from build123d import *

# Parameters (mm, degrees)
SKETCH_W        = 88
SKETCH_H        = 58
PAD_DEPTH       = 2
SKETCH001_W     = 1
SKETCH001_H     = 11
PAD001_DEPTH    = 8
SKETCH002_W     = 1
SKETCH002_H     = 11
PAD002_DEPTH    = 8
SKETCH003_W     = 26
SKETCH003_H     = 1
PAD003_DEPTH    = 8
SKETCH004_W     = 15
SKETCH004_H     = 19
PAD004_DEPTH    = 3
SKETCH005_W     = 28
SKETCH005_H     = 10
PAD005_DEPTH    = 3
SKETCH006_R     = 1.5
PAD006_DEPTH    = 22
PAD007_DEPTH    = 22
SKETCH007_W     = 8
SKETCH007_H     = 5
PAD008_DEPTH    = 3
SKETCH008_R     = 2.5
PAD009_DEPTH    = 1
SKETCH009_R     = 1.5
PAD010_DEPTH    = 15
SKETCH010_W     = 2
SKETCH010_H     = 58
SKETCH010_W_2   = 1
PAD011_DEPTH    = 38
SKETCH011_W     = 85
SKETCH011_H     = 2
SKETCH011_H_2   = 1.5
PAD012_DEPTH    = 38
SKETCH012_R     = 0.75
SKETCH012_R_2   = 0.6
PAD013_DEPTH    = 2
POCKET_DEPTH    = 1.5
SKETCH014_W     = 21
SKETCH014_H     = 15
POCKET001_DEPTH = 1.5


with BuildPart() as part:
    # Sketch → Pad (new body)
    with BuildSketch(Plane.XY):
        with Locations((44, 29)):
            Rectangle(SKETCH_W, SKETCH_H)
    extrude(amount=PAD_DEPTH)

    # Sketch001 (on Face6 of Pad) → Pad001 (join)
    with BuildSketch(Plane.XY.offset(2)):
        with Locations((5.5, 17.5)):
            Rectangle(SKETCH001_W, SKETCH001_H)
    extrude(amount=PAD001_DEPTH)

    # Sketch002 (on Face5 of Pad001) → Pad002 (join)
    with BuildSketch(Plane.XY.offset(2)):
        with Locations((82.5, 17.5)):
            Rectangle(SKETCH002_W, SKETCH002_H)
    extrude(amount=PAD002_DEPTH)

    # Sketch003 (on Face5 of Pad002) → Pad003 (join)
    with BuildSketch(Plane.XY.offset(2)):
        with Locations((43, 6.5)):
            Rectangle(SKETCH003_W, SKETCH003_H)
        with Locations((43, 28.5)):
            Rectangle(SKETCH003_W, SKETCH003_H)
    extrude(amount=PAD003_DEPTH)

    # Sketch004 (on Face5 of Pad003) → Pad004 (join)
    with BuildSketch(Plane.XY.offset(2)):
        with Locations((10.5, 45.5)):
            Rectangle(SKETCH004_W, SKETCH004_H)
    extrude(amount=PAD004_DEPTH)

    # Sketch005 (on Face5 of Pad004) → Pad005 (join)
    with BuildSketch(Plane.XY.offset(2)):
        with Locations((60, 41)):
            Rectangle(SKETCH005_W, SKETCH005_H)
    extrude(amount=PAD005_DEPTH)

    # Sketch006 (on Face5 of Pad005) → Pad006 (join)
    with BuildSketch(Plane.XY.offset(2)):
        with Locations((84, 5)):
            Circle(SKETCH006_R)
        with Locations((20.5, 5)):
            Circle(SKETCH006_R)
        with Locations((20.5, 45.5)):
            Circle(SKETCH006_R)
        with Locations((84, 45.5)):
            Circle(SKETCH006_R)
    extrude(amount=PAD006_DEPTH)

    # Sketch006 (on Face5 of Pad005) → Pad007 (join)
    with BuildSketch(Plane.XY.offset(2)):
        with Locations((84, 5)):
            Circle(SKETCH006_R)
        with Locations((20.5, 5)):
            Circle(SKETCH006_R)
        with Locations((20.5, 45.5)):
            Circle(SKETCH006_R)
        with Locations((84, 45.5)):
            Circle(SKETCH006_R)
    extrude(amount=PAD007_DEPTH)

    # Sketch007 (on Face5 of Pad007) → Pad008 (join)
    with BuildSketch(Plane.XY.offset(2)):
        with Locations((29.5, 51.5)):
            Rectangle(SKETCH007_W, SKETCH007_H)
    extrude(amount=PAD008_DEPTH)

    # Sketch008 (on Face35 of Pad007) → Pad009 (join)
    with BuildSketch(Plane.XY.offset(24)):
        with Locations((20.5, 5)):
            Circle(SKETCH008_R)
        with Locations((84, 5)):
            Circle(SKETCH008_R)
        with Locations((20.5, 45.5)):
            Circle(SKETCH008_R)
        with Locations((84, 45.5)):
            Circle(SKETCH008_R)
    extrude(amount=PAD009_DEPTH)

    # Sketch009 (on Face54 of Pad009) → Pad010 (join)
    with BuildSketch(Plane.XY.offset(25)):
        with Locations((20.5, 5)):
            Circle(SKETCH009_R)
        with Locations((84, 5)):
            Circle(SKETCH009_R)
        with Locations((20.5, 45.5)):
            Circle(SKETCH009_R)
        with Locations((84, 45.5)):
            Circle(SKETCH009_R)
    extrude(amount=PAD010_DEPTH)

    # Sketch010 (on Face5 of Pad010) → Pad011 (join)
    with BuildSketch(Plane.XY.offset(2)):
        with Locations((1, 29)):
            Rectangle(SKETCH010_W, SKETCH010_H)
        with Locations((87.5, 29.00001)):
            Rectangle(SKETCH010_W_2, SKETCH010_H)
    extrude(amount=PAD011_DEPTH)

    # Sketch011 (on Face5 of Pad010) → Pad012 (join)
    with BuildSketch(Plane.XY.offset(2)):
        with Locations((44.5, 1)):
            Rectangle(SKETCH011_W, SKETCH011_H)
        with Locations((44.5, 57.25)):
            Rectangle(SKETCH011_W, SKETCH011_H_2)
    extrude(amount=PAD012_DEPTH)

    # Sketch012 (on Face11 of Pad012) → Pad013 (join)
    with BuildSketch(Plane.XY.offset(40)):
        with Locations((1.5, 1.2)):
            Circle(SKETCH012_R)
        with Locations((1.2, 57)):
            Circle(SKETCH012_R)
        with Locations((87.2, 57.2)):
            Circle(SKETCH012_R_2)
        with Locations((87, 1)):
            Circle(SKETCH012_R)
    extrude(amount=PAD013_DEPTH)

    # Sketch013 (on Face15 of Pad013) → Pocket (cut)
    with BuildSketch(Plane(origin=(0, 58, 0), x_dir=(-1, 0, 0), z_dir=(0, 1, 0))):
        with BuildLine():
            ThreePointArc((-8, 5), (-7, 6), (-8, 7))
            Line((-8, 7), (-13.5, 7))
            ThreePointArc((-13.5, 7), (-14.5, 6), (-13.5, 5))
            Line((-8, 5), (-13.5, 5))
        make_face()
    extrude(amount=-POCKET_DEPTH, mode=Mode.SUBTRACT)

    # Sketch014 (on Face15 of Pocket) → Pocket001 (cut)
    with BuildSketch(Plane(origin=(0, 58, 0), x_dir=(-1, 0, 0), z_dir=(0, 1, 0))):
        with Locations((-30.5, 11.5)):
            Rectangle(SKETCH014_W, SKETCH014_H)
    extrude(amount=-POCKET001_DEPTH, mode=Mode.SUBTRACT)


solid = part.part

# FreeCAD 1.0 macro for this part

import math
import FreeCAD as App
import Part
import Sketcher
Q = App.Units.Quantity

doc = App.newDocument("Part")
params = doc.addObject("Spreadsheet::Sheet", "Params")
for row, (alias, value) in enumerate([
    ("sketch1_width", "88 mm"),
    ("sketch1_height", "58 mm"),
    ("pad1_length", "2 mm"),
    ("sketch2_width", "1 mm"),
    ("sketch2_height", "11 mm"),
    ("pad2_length", "8 mm"),
    ("sketch3_width", "1 mm"),
    ("sketch3_height", "11 mm"),
    ("pad3_length", "8 mm"),
    ("sketch4_width", "26 mm"),
    ("sketch4_height", "1 mm"),
    ("pad4_length", "8 mm"),
    ("sketch5_width", "15 mm"),
    ("sketch5_height", "19 mm"),
    ("pad5_length", "3 mm"),
    ("sketch6_width", "28 mm"),
    ("sketch6_height", "10 mm"),
    ("pad6_length", "3 mm"),
    ("sketch7_diameter", "3 mm"),
    ("pad7_length", "22 mm"),
    ("sketch8_diameter", "3 mm"),
    ("pad8_length", "22 mm"),
    ("sketch9_width", "8 mm"),
    ("sketch9_height", "5 mm"),
    ("pad9_length", "3 mm"),
    ("sketch10_diameter", "5 mm"),
    ("pad10_length", "1 mm"),
    ("sketch11_diameter", "3 mm"),
    ("pad11_length", "15 mm"),
    ("sketch12_width", "2 mm"),
    ("sketch12_width2", "1 mm"),
    ("sketch12_height", "58 mm"),
    ("pad12_length", "38 mm"),
    ("sketch13_width", "85 mm"),
    ("sketch13_height", "2 mm"),
    ("sketch13_height2", "1.5 mm"),
    ("pad13_length", "38 mm"),
    ("sketch14_diameter", "1.5 mm"),
    ("sketch14_diameter2", "1.2 mm"),
    ("pad14_length", "2 mm"),
    ("sketch15_radius", "1 mm"),
    ("sketch15_width", "5.5 mm"),
    ("pocket1_length", "1.5 mm"),
    ("sketch16_width", "21 mm"),
    ("sketch16_height", "15 mm"),
    ("pocket2_length", "1.5 mm"),
], start=1):
    params.set(f"A{row}", alias)
    params.set(f"B{row}", "=" + value)
    params.setAlias(f"B{row}", alias)

body = doc.addObject("PartDesign::Body", "Body")

# Sketch on XY plane
sketch1 = doc.addObject("Sketcher::SketchObject", "Sketch")
body.addObject(sketch1)
sketch1.AttachmentSupport = (doc.XY_Plane, [""])
sketch1.MapMode = "FlatFace"
sketch1.addGeometry([
    Part.LineSegment(App.Vector(0, 58, 0), App.Vector(0, 0, 0)),
    Part.LineSegment(App.Vector(0, 0, 0), App.Vector(88, 0, 0)),
    Part.LineSegment(App.Vector(88, 0, 0), App.Vector(88, 58, 0)),
    Part.LineSegment(App.Vector(88, 58, 0), App.Vector(0, 58, 0)),
], False)
sketch1.addConstraint([
    Sketcher.Constraint("Coincident", 0, 2, 1, 1),
    Sketcher.Constraint("Coincident", 1, 2, 2, 1),
    Sketcher.Constraint("Coincident", 2, 2, 3, 1),
    Sketcher.Constraint("Coincident", 3, 2, 0, 1),
    Sketcher.Constraint("Vertical", 0),
    Sketcher.Constraint("Horizontal", 1),
    Sketcher.Constraint("Vertical", 2),
    Sketcher.Constraint("Horizontal", 3),
    Sketcher.Constraint("Coincident", 0, 2, -1, 1),
    Sketcher.Constraint("DistanceX", 1, 1, 1, 2, Q("88 mm")),
    Sketcher.Constraint("DistanceY", 0, 2, 0, 1, Q("58 mm")),
])
sketch1.setExpression("Constraints[9]", "Params.sketch1_width")
sketch1.setExpression("Constraints[10]", "Params.sketch1_height")
pad1 = doc.addObject("PartDesign::Pad", "Pad")
body.addObject(pad1)
pad1.Profile = sketch1
pad1.setExpression("Length", "Params.pad1_length")

# Sketch on XY plane
sketch2 = doc.addObject("Sketcher::SketchObject", "Sketch001")
body.addObject(sketch2)
sketch2.AttachmentSupport = (doc.XY_Plane, [""])
sketch2.MapMode = "FlatFace"
sketch2.AttachmentOffset = App.Placement(App.Vector(0, 0, 2), App.Rotation())
sketch2.addGeometry([
    Part.LineSegment(App.Vector(5, 23, 0), App.Vector(5, 12, 0)),
    Part.LineSegment(App.Vector(5, 12, 0), App.Vector(6, 12, 0)),
    Part.LineSegment(App.Vector(6, 12, 0), App.Vector(6, 23, 0)),
    Part.LineSegment(App.Vector(6, 23, 0), App.Vector(5, 23, 0)),
], False)
sketch2.addConstraint([
    Sketcher.Constraint("Coincident", 0, 2, 1, 1),
    Sketcher.Constraint("Coincident", 1, 2, 2, 1),
    Sketcher.Constraint("Coincident", 2, 2, 3, 1),
    Sketcher.Constraint("Coincident", 3, 2, 0, 1),
    Sketcher.Constraint("Vertical", 0),
    Sketcher.Constraint("Horizontal", 1),
    Sketcher.Constraint("Vertical", 2),
    Sketcher.Constraint("Horizontal", 3),
    Sketcher.Constraint("DistanceX", 1, 1, 1, 2, Q("1 mm")),
    Sketcher.Constraint("DistanceY", 0, 2, 0, 1, Q("11 mm")),
    Sketcher.Constraint("DistanceX", -1, 1, 0, 2, Q("5 mm")),
    Sketcher.Constraint("DistanceY", -1, 1, 0, 2, Q("12 mm")),
])
sketch2.setExpression("Constraints[8]", "Params.sketch2_width")
sketch2.setExpression("Constraints[9]", "Params.sketch2_height")
pad2 = doc.addObject("PartDesign::Pad", "Pad001")
body.addObject(pad2)
pad2.Profile = sketch2
pad2.setExpression("Length", "Params.pad2_length")

# Sketch on XY plane
sketch3 = doc.addObject("Sketcher::SketchObject", "Sketch002")
body.addObject(sketch3)
sketch3.AttachmentSupport = (doc.XY_Plane, [""])
sketch3.MapMode = "FlatFace"
sketch3.AttachmentOffset = App.Placement(App.Vector(0, 0, 2), App.Rotation())
sketch3.addGeometry([
    Part.LineSegment(App.Vector(82, 23, 0), App.Vector(82, 12, 0)),
    Part.LineSegment(App.Vector(82, 12, 0), App.Vector(83, 12, 0)),
    Part.LineSegment(App.Vector(83, 12, 0), App.Vector(83, 23, 0)),
    Part.LineSegment(App.Vector(83, 23, 0), App.Vector(82, 23, 0)),
], False)
sketch3.addConstraint([
    Sketcher.Constraint("Coincident", 0, 2, 1, 1),
    Sketcher.Constraint("Coincident", 1, 2, 2, 1),
    Sketcher.Constraint("Coincident", 2, 2, 3, 1),
    Sketcher.Constraint("Coincident", 3, 2, 0, 1),
    Sketcher.Constraint("Vertical", 0),
    Sketcher.Constraint("Horizontal", 1),
    Sketcher.Constraint("Vertical", 2),
    Sketcher.Constraint("Horizontal", 3),
    Sketcher.Constraint("DistanceX", 1, 1, 1, 2, Q("1 mm")),
    Sketcher.Constraint("DistanceY", 0, 2, 0, 1, Q("11 mm")),
    Sketcher.Constraint("DistanceX", -1, 1, 0, 2, Q("82 mm")),
    Sketcher.Constraint("DistanceY", -1, 1, 0, 2, Q("12 mm")),
])
sketch3.setExpression("Constraints[8]", "Params.sketch3_width")
sketch3.setExpression("Constraints[9]", "Params.sketch3_height")
pad3 = doc.addObject("PartDesign::Pad", "Pad002")
body.addObject(pad3)
pad3.Profile = sketch3
pad3.setExpression("Length", "Params.pad3_length")

# Sketch on XY plane
sketch4 = doc.addObject("Sketcher::SketchObject", "Sketch003")
body.addObject(sketch4)
sketch4.AttachmentSupport = (doc.XY_Plane, [""])
sketch4.MapMode = "FlatFace"
sketch4.AttachmentOffset = App.Placement(App.Vector(0, 0, 2), App.Rotation())
sketch4.addGeometry([
    Part.LineSegment(App.Vector(30, 7, 0), App.Vector(30, 6, 0)),  # 0
    Part.LineSegment(App.Vector(30, 6, 0), App.Vector(56, 6, 0)),  # 1
    Part.LineSegment(App.Vector(56, 6, 0), App.Vector(56, 7, 0)),  # 2
    Part.LineSegment(App.Vector(56, 7, 0), App.Vector(30, 7, 0)),  # 3
    Part.LineSegment(App.Vector(30, 29, 0), App.Vector(30, 28, 0)),  # 4
    Part.LineSegment(App.Vector(30, 28, 0), App.Vector(56, 28, 0)),  # 5
    Part.LineSegment(App.Vector(56, 28, 0), App.Vector(56, 29, 0)),  # 6
    Part.LineSegment(App.Vector(56, 29, 0), App.Vector(30, 29, 0)),  # 7
], False)
sketch4.addConstraint([
    Sketcher.Constraint("Coincident", 0, 2, 1, 1),
    Sketcher.Constraint("Coincident", 1, 2, 2, 1),
    Sketcher.Constraint("Coincident", 2, 2, 3, 1),
    Sketcher.Constraint("Coincident", 3, 2, 0, 1),
    Sketcher.Constraint("Coincident", 4, 2, 5, 1),
    Sketcher.Constraint("Coincident", 5, 2, 6, 1),
    Sketcher.Constraint("Coincident", 6, 2, 7, 1),
    Sketcher.Constraint("Coincident", 7, 2, 4, 1),
    Sketcher.Constraint("Vertical", 0),
    Sketcher.Constraint("Horizontal", 1),
    Sketcher.Constraint("Vertical", 2),
    Sketcher.Constraint("Horizontal", 3),
    Sketcher.Constraint("Vertical", 4),
    Sketcher.Constraint("Horizontal", 5),
    Sketcher.Constraint("Vertical", 6),
    Sketcher.Constraint("Horizontal", 7),
    Sketcher.Constraint("Vertical", 3, 2, 4, 2),
    Sketcher.Constraint("Vertical", 2, 2, 5, 2),
    Sketcher.Constraint("Equal", 2, 4),
    Sketcher.Constraint("DistanceX", 1, 1, 1, 2, Q("26 mm")),
    Sketcher.Constraint("DistanceY", 0, 2, 0, 1, Q("1 mm")),
    Sketcher.Constraint("DistanceX", -1, 1, 0, 2, Q("30 mm")),
    Sketcher.Constraint("DistanceY", -1, 1, 0, 2, Q("6 mm")),
    Sketcher.Constraint("DistanceY", -1, 1, 4, 2, Q("28 mm")),
])
sketch4.setExpression("Constraints[19]", "Params.sketch4_width")
sketch4.setExpression("Constraints[20]", "Params.sketch4_height")
pad4 = doc.addObject("PartDesign::Pad", "Pad003")
body.addObject(pad4)
pad4.Profile = sketch4
pad4.setExpression("Length", "Params.pad4_length")

# Sketch on XY plane
sketch5 = doc.addObject("Sketcher::SketchObject", "Sketch004")
body.addObject(sketch5)
sketch5.AttachmentSupport = (doc.XY_Plane, [""])
sketch5.MapMode = "FlatFace"
sketch5.AttachmentOffset = App.Placement(App.Vector(0, 0, 2), App.Rotation())
sketch5.addGeometry([
    Part.LineSegment(App.Vector(3, 55, 0), App.Vector(3, 36, 0)),
    Part.LineSegment(App.Vector(3, 36, 0), App.Vector(18, 36, 0)),
    Part.LineSegment(App.Vector(18, 36, 0), App.Vector(18, 55, 0)),
    Part.LineSegment(App.Vector(18, 55, 0), App.Vector(3, 55, 0)),
], False)
sketch5.addConstraint([
    Sketcher.Constraint("Coincident", 0, 2, 1, 1),
    Sketcher.Constraint("Coincident", 1, 2, 2, 1),
    Sketcher.Constraint("Coincident", 2, 2, 3, 1),
    Sketcher.Constraint("Coincident", 3, 2, 0, 1),
    Sketcher.Constraint("Vertical", 0),
    Sketcher.Constraint("Horizontal", 1),
    Sketcher.Constraint("Vertical", 2),
    Sketcher.Constraint("Horizontal", 3),
    Sketcher.Constraint("DistanceX", 1, 1, 1, 2, Q("15 mm")),
    Sketcher.Constraint("DistanceY", 0, 2, 0, 1, Q("19 mm")),
    Sketcher.Constraint("DistanceX", -1, 1, 0, 2, Q("3 mm")),
    Sketcher.Constraint("DistanceY", -1, 1, 0, 2, Q("36 mm")),
])
sketch5.setExpression("Constraints[8]", "Params.sketch5_width")
sketch5.setExpression("Constraints[9]", "Params.sketch5_height")
pad5 = doc.addObject("PartDesign::Pad", "Pad004")
body.addObject(pad5)
pad5.Profile = sketch5
pad5.setExpression("Length", "Params.pad5_length")

# Sketch on XY plane
sketch6 = doc.addObject("Sketcher::SketchObject", "Sketch005")
body.addObject(sketch6)
sketch6.AttachmentSupport = (doc.XY_Plane, [""])
sketch6.MapMode = "FlatFace"
sketch6.AttachmentOffset = App.Placement(App.Vector(0, 0, 2), App.Rotation())
sketch6.addGeometry([
    Part.LineSegment(App.Vector(46, 46, 0), App.Vector(46, 36, 0)),
    Part.LineSegment(App.Vector(46, 36, 0), App.Vector(74, 36, 0)),
    Part.LineSegment(App.Vector(74, 36, 0), App.Vector(74, 46, 0)),
    Part.LineSegment(App.Vector(74, 46, 0), App.Vector(46, 46, 0)),
], False)
sketch6.addConstraint([
    Sketcher.Constraint("Coincident", 0, 2, 1, 1),
    Sketcher.Constraint("Coincident", 1, 2, 2, 1),
    Sketcher.Constraint("Coincident", 2, 2, 3, 1),
    Sketcher.Constraint("Coincident", 3, 2, 0, 1),
    Sketcher.Constraint("Vertical", 0),
    Sketcher.Constraint("Horizontal", 1),
    Sketcher.Constraint("Vertical", 2),
    Sketcher.Constraint("Horizontal", 3),
    Sketcher.Constraint("DistanceX", 1, 1, 1, 2, Q("28 mm")),
    Sketcher.Constraint("DistanceY", 0, 2, 0, 1, Q("10 mm")),
    Sketcher.Constraint("DistanceX", -1, 1, 0, 2, Q("46 mm")),
    Sketcher.Constraint("DistanceY", -1, 1, 0, 2, Q("36 mm")),
])
sketch6.setExpression("Constraints[8]", "Params.sketch6_width")
sketch6.setExpression("Constraints[9]", "Params.sketch6_height")
pad6 = doc.addObject("PartDesign::Pad", "Pad005")
body.addObject(pad6)
pad6.Profile = sketch6
pad6.setExpression("Length", "Params.pad6_length")

# Sketch on XY plane
sketch7 = doc.addObject("Sketcher::SketchObject", "Sketch006")
body.addObject(sketch7)
sketch7.AttachmentSupport = (doc.XY_Plane, [""])
sketch7.MapMode = "FlatFace"
sketch7.AttachmentOffset = App.Placement(App.Vector(0, 0, 2), App.Rotation())
sketch7.addGeometry([
    Part.Circle(App.Vector(84, 5, 0), App.Vector(0, 0, 1), 1.5),
    Part.Circle(App.Vector(20.5, 5, 0), App.Vector(0, 0, 1), 1.5),
    Part.Circle(App.Vector(20.5, 45.5, 0), App.Vector(0, 0, 1), 1.5),
    Part.Circle(App.Vector(84, 45.5, 0), App.Vector(0, 0, 1), 1.5),
], False)
sketch7.addConstraint([
    Sketcher.Constraint("Equal", 0, 1),
    Sketcher.Constraint("Equal", 1, 2),
    Sketcher.Constraint("Equal", 2, 3),
    Sketcher.Constraint("Horizontal", 0, 3, 1, 3),
    Sketcher.Constraint("Horizontal", 2, 3, 3, 3),
    Sketcher.Constraint("Vertical", 1, 3, 2, 3),
    Sketcher.Constraint("Vertical", 0, 3, 3, 3),
    Sketcher.Constraint("Diameter", 0, Q("3 mm")),
    Sketcher.Constraint("DistanceX", -1, 1, 0, 3, Q("84 mm")),
    Sketcher.Constraint("DistanceY", -1, 1, 0, 3, Q("5 mm")),
    Sketcher.Constraint("DistanceX", -1, 1, 1, 3, Q("20.5 mm")),
    Sketcher.Constraint("DistanceY", -1, 1, 2, 3, Q("45.5 mm")),
])
sketch7.setExpression("Constraints[7]", "Params.sketch7_diameter")
pad7 = doc.addObject("PartDesign::Pad", "Pad006")
body.addObject(pad7)
pad7.Profile = sketch7
pad7.setExpression("Length", "Params.pad7_length")

# Sketch on XY plane
sketch8 = doc.addObject("Sketcher::SketchObject", "Sketch007")
body.addObject(sketch8)
sketch8.AttachmentSupport = (doc.XY_Plane, [""])
sketch8.MapMode = "FlatFace"
sketch8.AttachmentOffset = App.Placement(App.Vector(0, 0, 2), App.Rotation())
sketch8.addGeometry([
    Part.Circle(App.Vector(84, 5, 0), App.Vector(0, 0, 1), 1.5),
    Part.Circle(App.Vector(20.5, 5, 0), App.Vector(0, 0, 1), 1.5),
    Part.Circle(App.Vector(20.5, 45.5, 0), App.Vector(0, 0, 1), 1.5),
    Part.Circle(App.Vector(84, 45.5, 0), App.Vector(0, 0, 1), 1.5),
], False)
sketch8.addConstraint([
    Sketcher.Constraint("Equal", 0, 1),
    Sketcher.Constraint("Equal", 1, 2),
    Sketcher.Constraint("Equal", 2, 3),
    Sketcher.Constraint("Horizontal", 0, 3, 1, 3),
    Sketcher.Constraint("Horizontal", 2, 3, 3, 3),
    Sketcher.Constraint("Vertical", 1, 3, 2, 3),
    Sketcher.Constraint("Vertical", 0, 3, 3, 3),
    Sketcher.Constraint("Diameter", 0, Q("3 mm")),
    Sketcher.Constraint("DistanceX", -1, 1, 0, 3, Q("84 mm")),
    Sketcher.Constraint("DistanceY", -1, 1, 0, 3, Q("5 mm")),
    Sketcher.Constraint("DistanceX", -1, 1, 1, 3, Q("20.5 mm")),
    Sketcher.Constraint("DistanceY", -1, 1, 2, 3, Q("45.5 mm")),
])
sketch8.setExpression("Constraints[7]", "Params.sketch8_diameter")
pad8 = doc.addObject("PartDesign::Pad", "Pad007")
body.addObject(pad8)
pad8.Profile = sketch8
pad8.setExpression("Length", "Params.pad8_length")

# Sketch on XY plane
sketch9 = doc.addObject("Sketcher::SketchObject", "Sketch008")
body.addObject(sketch9)
sketch9.AttachmentSupport = (doc.XY_Plane, [""])
sketch9.MapMode = "FlatFace"
sketch9.AttachmentOffset = App.Placement(App.Vector(0, 0, 2), App.Rotation())
sketch9.addGeometry([
    Part.LineSegment(App.Vector(25.5, 54, 0), App.Vector(25.5, 49, 0)),
    Part.LineSegment(App.Vector(25.5, 49, 0), App.Vector(33.5, 49, 0)),
    Part.LineSegment(App.Vector(33.5, 49, 0), App.Vector(33.5, 54, 0)),
    Part.LineSegment(App.Vector(33.5, 54, 0), App.Vector(25.5, 54, 0)),
], False)
sketch9.addConstraint([
    Sketcher.Constraint("Coincident", 0, 2, 1, 1),
    Sketcher.Constraint("Coincident", 1, 2, 2, 1),
    Sketcher.Constraint("Coincident", 2, 2, 3, 1),
    Sketcher.Constraint("Coincident", 3, 2, 0, 1),
    Sketcher.Constraint("Vertical", 0),
    Sketcher.Constraint("Horizontal", 1),
    Sketcher.Constraint("Vertical", 2),
    Sketcher.Constraint("Horizontal", 3),
    Sketcher.Constraint("DistanceX", 1, 1, 1, 2, Q("8 mm")),
    Sketcher.Constraint("DistanceY", 0, 2, 0, 1, Q("5 mm")),
    Sketcher.Constraint("DistanceY", -1, 1, 0, 2, Q("49 mm")),
    Sketcher.Constraint("DistanceX", -1, 1, 0, 2, Q("25.5 mm")),
])
sketch9.setExpression("Constraints[8]", "Params.sketch9_width")
sketch9.setExpression("Constraints[9]", "Params.sketch9_height")
pad9 = doc.addObject("PartDesign::Pad", "Pad008")
body.addObject(pad9)
pad9.Profile = sketch9
pad9.setExpression("Length", "Params.pad9_length")

# Sketch on XY plane
sketch10 = doc.addObject("Sketcher::SketchObject", "Sketch009")
body.addObject(sketch10)
sketch10.AttachmentSupport = (doc.XY_Plane, [""])
sketch10.MapMode = "FlatFace"
sketch10.AttachmentOffset = App.Placement(App.Vector(0, 0, 24), App.Rotation())
sketch10.addGeometry([
    Part.Circle(App.Vector(20.5, 5, 0), App.Vector(0, 0, 1), 2.5),
    Part.Circle(App.Vector(84, 5, 0), App.Vector(0, 0, 1), 2.5),
    Part.Circle(App.Vector(20.5, 45.5, 0), App.Vector(0, 0, 1), 2.5),
    Part.Circle(App.Vector(84, 45.5, 0), App.Vector(0, 0, 1), 2.5),
], False)
sketch10.addConstraint([
    Sketcher.Constraint("Equal", 0, 1),
    Sketcher.Constraint("Equal", 1, 2),
    Sketcher.Constraint("Equal", 2, 3),
    Sketcher.Constraint("Horizontal", 0, 3, 1, 3),
    Sketcher.Constraint("Horizontal", 2, 3, 3, 3),
    Sketcher.Constraint("Vertical", 0, 3, 2, 3),
    Sketcher.Constraint("Vertical", 1, 3, 3, 3),
    Sketcher.Constraint("Diameter", 0, Q("5 mm")),
    Sketcher.Constraint("DistanceY", -1, 1, 0, 3, Q("5 mm")),
    Sketcher.Constraint("DistanceX", -1, 1, 1, 3, Q("84 mm")),
    Sketcher.Constraint("DistanceX", -1, 1, 0, 3, Q("20.5 mm")),
    Sketcher.Constraint("DistanceY", -1, 1, 2, 3, Q("45.5 mm")),
])
sketch10.setExpression("Constraints[7]", "Params.sketch10_diameter")
pad10 = doc.addObject("PartDesign::Pad", "Pad009")
body.addObject(pad10)
pad10.Profile = sketch10
pad10.setExpression("Length", "Params.pad10_length")

# Sketch on XY plane
sketch11 = doc.addObject("Sketcher::SketchObject", "Sketch010")
body.addObject(sketch11)
sketch11.AttachmentSupport = (doc.XY_Plane, [""])
sketch11.MapMode = "FlatFace"
sketch11.AttachmentOffset = App.Placement(App.Vector(0, 0, 25), App.Rotation())
sketch11.addGeometry([
    Part.Circle(App.Vector(20.5, 5, 0), App.Vector(0, 0, 1), 1.5),
    Part.Circle(App.Vector(84, 5, 0), App.Vector(0, 0, 1), 1.5),
    Part.Circle(App.Vector(20.5, 45.5, 0), App.Vector(0, 0, 1), 1.5),
    Part.Circle(App.Vector(84, 45.5, 0), App.Vector(0, 0, 1), 1.5),
], False)
sketch11.addConstraint([
    Sketcher.Constraint("Equal", 0, 1),
    Sketcher.Constraint("Equal", 1, 2),
    Sketcher.Constraint("Equal", 2, 3),
    Sketcher.Constraint("Horizontal", 0, 3, 1, 3),
    Sketcher.Constraint("Horizontal", 2, 3, 3, 3),
    Sketcher.Constraint("Vertical", 0, 3, 2, 3),
    Sketcher.Constraint("Vertical", 1, 3, 3, 3),
    Sketcher.Constraint("Diameter", 0, Q("3 mm")),
    Sketcher.Constraint("DistanceY", -1, 1, 0, 3, Q("5 mm")),
    Sketcher.Constraint("DistanceX", -1, 1, 1, 3, Q("84 mm")),
    Sketcher.Constraint("DistanceX", -1, 1, 0, 3, Q("20.5 mm")),
    Sketcher.Constraint("DistanceY", -1, 1, 2, 3, Q("45.5 mm")),
])
sketch11.setExpression("Constraints[7]", "Params.sketch11_diameter")
pad11 = doc.addObject("PartDesign::Pad", "Pad010")
body.addObject(pad11)
pad11.Profile = sketch11
pad11.setExpression("Length", "Params.pad11_length")

# Sketch on XY plane
sketch12 = doc.addObject("Sketcher::SketchObject", "Sketch011")
body.addObject(sketch12)
sketch12.AttachmentSupport = (doc.XY_Plane, [""])
sketch12.MapMode = "FlatFace"
sketch12.AttachmentOffset = App.Placement(App.Vector(0, 0, 2), App.Rotation())
sketch12.addGeometry([
    Part.LineSegment(App.Vector(0, 58, 0), App.Vector(0, 0, 0)),  # 0
    Part.LineSegment(App.Vector(0, 0, 0), App.Vector(2, 0, 0)),  # 1
    Part.LineSegment(App.Vector(2, 0, 0), App.Vector(2, 58, 0)),  # 2
    Part.LineSegment(App.Vector(2, 58, 0), App.Vector(0, 58, 0)),  # 3
    Part.LineSegment(App.Vector(87, 58.00001, 0), App.Vector(87, 0.00001, 0)),  # 4
    Part.LineSegment(App.Vector(87, 0.00001, 0), App.Vector(88, 0.00001, 0)),  # 5
    Part.LineSegment(App.Vector(88, 0.00001, 0), App.Vector(88, 58.00001, 0)),  # 6
    Part.LineSegment(App.Vector(88, 58.00001, 0), App.Vector(87, 58.00001, 0)),  # 7
], False)
sketch12.addConstraint([
    Sketcher.Constraint("Coincident", 0, 2, 1, 1),
    Sketcher.Constraint("Coincident", 1, 2, 2, 1),
    Sketcher.Constraint("Coincident", 2, 2, 3, 1),
    Sketcher.Constraint("Coincident", 3, 2, 0, 1),
    Sketcher.Constraint("Coincident", 4, 2, 5, 1),
    Sketcher.Constraint("Coincident", 5, 2, 6, 1),
    Sketcher.Constraint("Coincident", 6, 2, 7, 1),
    Sketcher.Constraint("Coincident", 7, 2, 4, 1),
    Sketcher.Constraint("Vertical", 0),
    Sketcher.Constraint("Horizontal", 1),
    Sketcher.Constraint("Vertical", 2),
    Sketcher.Constraint("Horizontal", 3),
    Sketcher.Constraint("Vertical", 4),
    Sketcher.Constraint("Horizontal", 5),
    Sketcher.Constraint("Vertical", 6),
    Sketcher.Constraint("Horizontal", 7),
    Sketcher.Constraint("Coincident", 0, 2, -1, 1),
    Sketcher.Constraint("Equal", 2, 4),
    Sketcher.Constraint("DistanceX", 1, 1, 1, 2, Q("2 mm")),
    Sketcher.Constraint("DistanceX", 5, 1, 5, 2, Q("1 mm")),
    Sketcher.Constraint("DistanceY", 0, 2, 0, 1, Q("58 mm")),
    Sketcher.Constraint("DistanceX", -1, 1, 4, 2, Q("87 mm")),
    Sketcher.Constraint("DistanceY", -1, 1, 6, 2, Q("58.00001 mm")),
])
sketch12.setExpression("Constraints[18]", "Params.sketch12_width")
sketch12.setExpression("Constraints[19]", "Params.sketch12_width2")
sketch12.setExpression("Constraints[20]", "Params.sketch12_height")
pad12 = doc.addObject("PartDesign::Pad", "Pad011")
body.addObject(pad12)
pad12.Profile = sketch12
pad12.setExpression("Length", "Params.pad12_length")

# Sketch on XY plane
sketch13 = doc.addObject("Sketcher::SketchObject", "Sketch012")
body.addObject(sketch13)
sketch13.AttachmentSupport = (doc.XY_Plane, [""])
sketch13.MapMode = "FlatFace"
sketch13.AttachmentOffset = App.Placement(App.Vector(0, 0, 2), App.Rotation())
sketch13.addGeometry([
    Part.LineSegment(App.Vector(2, 2, 0), App.Vector(2, 0, 0)),  # 0
    Part.LineSegment(App.Vector(2, 0, 0), App.Vector(87, 0, 0)),  # 1
    Part.LineSegment(App.Vector(87, 0, 0), App.Vector(87, 2, 0)),  # 2
    Part.LineSegment(App.Vector(87, 2, 0), App.Vector(2, 2, 0)),  # 3
    Part.LineSegment(App.Vector(2, 58, 0), App.Vector(2, 56.5, 0)),  # 4
    Part.LineSegment(App.Vector(2, 56.5, 0), App.Vector(87, 56.5, 0)),  # 5
    Part.LineSegment(App.Vector(87, 56.5, 0), App.Vector(87, 58, 0)),  # 6
    Part.LineSegment(App.Vector(87, 58, 0), App.Vector(2, 58, 0)),  # 7
], False)
sketch13.addConstraint([
    Sketcher.Constraint("Coincident", 0, 2, 1, 1),
    Sketcher.Constraint("Coincident", 1, 2, 2, 1),
    Sketcher.Constraint("Coincident", 2, 2, 3, 1),
    Sketcher.Constraint("Coincident", 3, 2, 0, 1),
    Sketcher.Constraint("Coincident", 4, 2, 5, 1),
    Sketcher.Constraint("Coincident", 5, 2, 6, 1),
    Sketcher.Constraint("Coincident", 6, 2, 7, 1),
    Sketcher.Constraint("Coincident", 7, 2, 4, 1),
    Sketcher.Constraint("Vertical", 0),
    Sketcher.Constraint("Horizontal", 1),
    Sketcher.Constraint("Vertical", 2),
    Sketcher.Constraint("Horizontal", 3),
    Sketcher.Constraint("Vertical", 4),
    Sketcher.Constraint("Horizontal", 5),
    Sketcher.Constraint("Vertical", 6),
    Sketcher.Constraint("Horizontal", 7),
    Sketcher.Constraint("PointOnObject", 0, 2, -1),
    Sketcher.Constraint("Vertical", 3, 2, 4, 2),
    Sketcher.Constraint("Vertical", 2, 2, 5, 2),
    Sketcher.Constraint("DistanceX", 1, 1, 1, 2, Q("85 mm")),
    Sketcher.Constraint("DistanceY", 0, 2, 0, 1, Q("2 mm")),
    Sketcher.Constraint("DistanceY", 4, 2, 4, 1, Q("1.5 mm")),
    Sketcher.Constraint("DistanceX", -1, 1, 0, 2, Q("2 mm")),
    Sketcher.Constraint("DistanceY", -1, 1, 6, 2, Q("58 mm")),
])
sketch13.setExpression("Constraints[19]", "Params.sketch13_width")
sketch13.setExpression("Constraints[20]", "Params.sketch13_height")
sketch13.setExpression("Constraints[21]", "Params.sketch13_height2")
pad13 = doc.addObject("PartDesign::Pad", "Pad012")
body.addObject(pad13)
pad13.Profile = sketch13
pad13.setExpression("Length", "Params.pad13_length")

# Sketch on XY plane
sketch14 = doc.addObject("Sketcher::SketchObject", "Sketch013")
body.addObject(sketch14)
sketch14.AttachmentSupport = (doc.XY_Plane, [""])
sketch14.MapMode = "FlatFace"
sketch14.AttachmentOffset = App.Placement(App.Vector(0, 0, 40), App.Rotation())
sketch14.addGeometry([
    Part.Circle(App.Vector(1.5, 1.2, 0), App.Vector(0, 0, 1), 0.75),
    Part.Circle(App.Vector(1.2, 57, 0), App.Vector(0, 0, 1), 0.75),
    Part.Circle(App.Vector(87.2, 57.2, 0), App.Vector(0, 0, 1), 0.6),
    Part.Circle(App.Vector(87, 1, 0), App.Vector(0, 0, 1), 0.75),
], False)
sketch14.addConstraint([
    Sketcher.Constraint("Equal", 0, 1),
    Sketcher.Constraint("Equal", 1, 3),
    Sketcher.Constraint("Diameter", 0, Q("1.5 mm")),
    Sketcher.Constraint("Diameter", 2, Q("1.2 mm")),
    Sketcher.Constraint("DistanceY", -1, 1, 1, 3, Q("57 mm")),
    Sketcher.Constraint("DistanceX", -1, 1, 3, 3, Q("87 mm")),
    Sketcher.Constraint("DistanceY", -1, 1, 3, 3, Q("1 mm")),
    Sketcher.Constraint("DistanceX", 1, 3, 2, 3, Q("86 mm")),
    Sketcher.Constraint("DistanceY", 0, 3, 2, 3, Q("56 mm")),
    Sketcher.Constraint("DistanceX", -1, 1, 0, 3, Q("1.5 mm")),
    Sketcher.Constraint("DistanceY", -1, 1, 0, 3, Q("1.2 mm")),
    Sketcher.Constraint("DistanceX", -1, 1, 1, 3, Q("1.2 mm")),
])
sketch14.setExpression("Constraints[2]", "Params.sketch14_diameter")
sketch14.setExpression("Constraints[3]", "Params.sketch14_diameter2")
pad14 = doc.addObject("PartDesign::Pad", "Pad013")
body.addObject(pad14)
pad14.Profile = sketch14
pad14.setExpression("Length", "Params.pad14_length")

# Sketch on XZ plane
sketch15 = doc.addObject("Sketcher::SketchObject", "Sketch014")
body.addObject(sketch15)
sketch15.AttachmentSupport = (doc.XZ_Plane, [""])
sketch15.MapMode = "FlatFace"
sketch15.AttachmentOffset = App.Placement(App.Vector(0, 0, -58), App.Rotation())
sketch15.addGeometry([
    Part.ArcOfCircle(Part.Circle(App.Vector(8, 6, 0), App.Vector(0, 0, 1), 1), math.radians(90), math.radians(270)),
    Part.LineSegment(App.Vector(8, 7, 0), App.Vector(13.5, 7, 0)),
    Part.ArcOfCircle(Part.Circle(App.Vector(13.5, 6, 0), App.Vector(0, 0, 1), 1), math.radians(-90), math.radians(90)),
    Part.LineSegment(App.Vector(13.5, 5, 0), App.Vector(8, 5, 0)),
], False)
sketch15.addConstraint([
    Sketcher.Constraint("Tangent", 0, 1, 1, 1),
    Sketcher.Constraint("Tangent", 1, 2, 2, 2),
    Sketcher.Constraint("Tangent", 2, 1, 3, 1),
    Sketcher.Constraint("Tangent", 3, 2, 0, 2),
    Sketcher.Constraint("Horizontal", 1),
    Sketcher.Constraint("Horizontal", 3),
    Sketcher.Constraint("Radius", 0, Q("1 mm")),
    Sketcher.Constraint("DistanceX", 1, 1, 1, 2, Q("5.5 mm")),
    Sketcher.Constraint("DistanceX", -1, 1, 0, 3, Q("8 mm")),
    Sketcher.Constraint("DistanceY", -1, 1, 0, 3, Q("6 mm")),
])
sketch15.setExpression("Constraints[6]", "Params.sketch15_radius")
sketch15.setExpression("Constraints[7]", "Params.sketch15_width")
pocket1 = doc.addObject("PartDesign::Pocket", "Pocket")
body.addObject(pocket1)
pocket1.Profile = sketch15
pocket1.setExpression("Length", "Params.pocket1_length")
pocket1.Reversed = True

# Sketch on XZ plane
sketch16 = doc.addObject("Sketcher::SketchObject", "Sketch015")
body.addObject(sketch16)
sketch16.AttachmentSupport = (doc.XZ_Plane, [""])
sketch16.MapMode = "FlatFace"
sketch16.AttachmentOffset = App.Placement(App.Vector(0, 0, -58), App.Rotation())
sketch16.addGeometry([
    Part.LineSegment(App.Vector(41, 19, 0), App.Vector(41, 4, 0)),
    Part.LineSegment(App.Vector(41, 4, 0), App.Vector(20, 4, 0)),
    Part.LineSegment(App.Vector(20, 4, 0), App.Vector(20, 19, 0)),
    Part.LineSegment(App.Vector(20, 19, 0), App.Vector(41, 19, 0)),
], False)
sketch16.addConstraint([
    Sketcher.Constraint("Coincident", 0, 2, 1, 1),
    Sketcher.Constraint("Coincident", 1, 2, 2, 1),
    Sketcher.Constraint("Coincident", 2, 2, 3, 1),
    Sketcher.Constraint("Coincident", 3, 2, 0, 1),
    Sketcher.Constraint("Vertical", 0),
    Sketcher.Constraint("Horizontal", 1),
    Sketcher.Constraint("Vertical", 2),
    Sketcher.Constraint("Horizontal", 3),
    Sketcher.Constraint("DistanceX", 1, 2, 1, 1, Q("21 mm")),
    Sketcher.Constraint("DistanceY", 0, 2, 0, 1, Q("15 mm")),
    Sketcher.Constraint("DistanceX", -1, 1, 0, 2, Q("41 mm")),
    Sketcher.Constraint("DistanceY", -1, 1, 0, 2, Q("4 mm")),
])
sketch16.setExpression("Constraints[8]", "Params.sketch16_width")
sketch16.setExpression("Constraints[9]", "Params.sketch16_height")
pocket2 = doc.addObject("PartDesign::Pocket", "Pocket001")
body.addObject(pocket2)
pocket2.Profile = sketch16
pocket2.setExpression("Length", "Params.pocket2_length")
pocket2.Reversed = True

doc.recompute()
